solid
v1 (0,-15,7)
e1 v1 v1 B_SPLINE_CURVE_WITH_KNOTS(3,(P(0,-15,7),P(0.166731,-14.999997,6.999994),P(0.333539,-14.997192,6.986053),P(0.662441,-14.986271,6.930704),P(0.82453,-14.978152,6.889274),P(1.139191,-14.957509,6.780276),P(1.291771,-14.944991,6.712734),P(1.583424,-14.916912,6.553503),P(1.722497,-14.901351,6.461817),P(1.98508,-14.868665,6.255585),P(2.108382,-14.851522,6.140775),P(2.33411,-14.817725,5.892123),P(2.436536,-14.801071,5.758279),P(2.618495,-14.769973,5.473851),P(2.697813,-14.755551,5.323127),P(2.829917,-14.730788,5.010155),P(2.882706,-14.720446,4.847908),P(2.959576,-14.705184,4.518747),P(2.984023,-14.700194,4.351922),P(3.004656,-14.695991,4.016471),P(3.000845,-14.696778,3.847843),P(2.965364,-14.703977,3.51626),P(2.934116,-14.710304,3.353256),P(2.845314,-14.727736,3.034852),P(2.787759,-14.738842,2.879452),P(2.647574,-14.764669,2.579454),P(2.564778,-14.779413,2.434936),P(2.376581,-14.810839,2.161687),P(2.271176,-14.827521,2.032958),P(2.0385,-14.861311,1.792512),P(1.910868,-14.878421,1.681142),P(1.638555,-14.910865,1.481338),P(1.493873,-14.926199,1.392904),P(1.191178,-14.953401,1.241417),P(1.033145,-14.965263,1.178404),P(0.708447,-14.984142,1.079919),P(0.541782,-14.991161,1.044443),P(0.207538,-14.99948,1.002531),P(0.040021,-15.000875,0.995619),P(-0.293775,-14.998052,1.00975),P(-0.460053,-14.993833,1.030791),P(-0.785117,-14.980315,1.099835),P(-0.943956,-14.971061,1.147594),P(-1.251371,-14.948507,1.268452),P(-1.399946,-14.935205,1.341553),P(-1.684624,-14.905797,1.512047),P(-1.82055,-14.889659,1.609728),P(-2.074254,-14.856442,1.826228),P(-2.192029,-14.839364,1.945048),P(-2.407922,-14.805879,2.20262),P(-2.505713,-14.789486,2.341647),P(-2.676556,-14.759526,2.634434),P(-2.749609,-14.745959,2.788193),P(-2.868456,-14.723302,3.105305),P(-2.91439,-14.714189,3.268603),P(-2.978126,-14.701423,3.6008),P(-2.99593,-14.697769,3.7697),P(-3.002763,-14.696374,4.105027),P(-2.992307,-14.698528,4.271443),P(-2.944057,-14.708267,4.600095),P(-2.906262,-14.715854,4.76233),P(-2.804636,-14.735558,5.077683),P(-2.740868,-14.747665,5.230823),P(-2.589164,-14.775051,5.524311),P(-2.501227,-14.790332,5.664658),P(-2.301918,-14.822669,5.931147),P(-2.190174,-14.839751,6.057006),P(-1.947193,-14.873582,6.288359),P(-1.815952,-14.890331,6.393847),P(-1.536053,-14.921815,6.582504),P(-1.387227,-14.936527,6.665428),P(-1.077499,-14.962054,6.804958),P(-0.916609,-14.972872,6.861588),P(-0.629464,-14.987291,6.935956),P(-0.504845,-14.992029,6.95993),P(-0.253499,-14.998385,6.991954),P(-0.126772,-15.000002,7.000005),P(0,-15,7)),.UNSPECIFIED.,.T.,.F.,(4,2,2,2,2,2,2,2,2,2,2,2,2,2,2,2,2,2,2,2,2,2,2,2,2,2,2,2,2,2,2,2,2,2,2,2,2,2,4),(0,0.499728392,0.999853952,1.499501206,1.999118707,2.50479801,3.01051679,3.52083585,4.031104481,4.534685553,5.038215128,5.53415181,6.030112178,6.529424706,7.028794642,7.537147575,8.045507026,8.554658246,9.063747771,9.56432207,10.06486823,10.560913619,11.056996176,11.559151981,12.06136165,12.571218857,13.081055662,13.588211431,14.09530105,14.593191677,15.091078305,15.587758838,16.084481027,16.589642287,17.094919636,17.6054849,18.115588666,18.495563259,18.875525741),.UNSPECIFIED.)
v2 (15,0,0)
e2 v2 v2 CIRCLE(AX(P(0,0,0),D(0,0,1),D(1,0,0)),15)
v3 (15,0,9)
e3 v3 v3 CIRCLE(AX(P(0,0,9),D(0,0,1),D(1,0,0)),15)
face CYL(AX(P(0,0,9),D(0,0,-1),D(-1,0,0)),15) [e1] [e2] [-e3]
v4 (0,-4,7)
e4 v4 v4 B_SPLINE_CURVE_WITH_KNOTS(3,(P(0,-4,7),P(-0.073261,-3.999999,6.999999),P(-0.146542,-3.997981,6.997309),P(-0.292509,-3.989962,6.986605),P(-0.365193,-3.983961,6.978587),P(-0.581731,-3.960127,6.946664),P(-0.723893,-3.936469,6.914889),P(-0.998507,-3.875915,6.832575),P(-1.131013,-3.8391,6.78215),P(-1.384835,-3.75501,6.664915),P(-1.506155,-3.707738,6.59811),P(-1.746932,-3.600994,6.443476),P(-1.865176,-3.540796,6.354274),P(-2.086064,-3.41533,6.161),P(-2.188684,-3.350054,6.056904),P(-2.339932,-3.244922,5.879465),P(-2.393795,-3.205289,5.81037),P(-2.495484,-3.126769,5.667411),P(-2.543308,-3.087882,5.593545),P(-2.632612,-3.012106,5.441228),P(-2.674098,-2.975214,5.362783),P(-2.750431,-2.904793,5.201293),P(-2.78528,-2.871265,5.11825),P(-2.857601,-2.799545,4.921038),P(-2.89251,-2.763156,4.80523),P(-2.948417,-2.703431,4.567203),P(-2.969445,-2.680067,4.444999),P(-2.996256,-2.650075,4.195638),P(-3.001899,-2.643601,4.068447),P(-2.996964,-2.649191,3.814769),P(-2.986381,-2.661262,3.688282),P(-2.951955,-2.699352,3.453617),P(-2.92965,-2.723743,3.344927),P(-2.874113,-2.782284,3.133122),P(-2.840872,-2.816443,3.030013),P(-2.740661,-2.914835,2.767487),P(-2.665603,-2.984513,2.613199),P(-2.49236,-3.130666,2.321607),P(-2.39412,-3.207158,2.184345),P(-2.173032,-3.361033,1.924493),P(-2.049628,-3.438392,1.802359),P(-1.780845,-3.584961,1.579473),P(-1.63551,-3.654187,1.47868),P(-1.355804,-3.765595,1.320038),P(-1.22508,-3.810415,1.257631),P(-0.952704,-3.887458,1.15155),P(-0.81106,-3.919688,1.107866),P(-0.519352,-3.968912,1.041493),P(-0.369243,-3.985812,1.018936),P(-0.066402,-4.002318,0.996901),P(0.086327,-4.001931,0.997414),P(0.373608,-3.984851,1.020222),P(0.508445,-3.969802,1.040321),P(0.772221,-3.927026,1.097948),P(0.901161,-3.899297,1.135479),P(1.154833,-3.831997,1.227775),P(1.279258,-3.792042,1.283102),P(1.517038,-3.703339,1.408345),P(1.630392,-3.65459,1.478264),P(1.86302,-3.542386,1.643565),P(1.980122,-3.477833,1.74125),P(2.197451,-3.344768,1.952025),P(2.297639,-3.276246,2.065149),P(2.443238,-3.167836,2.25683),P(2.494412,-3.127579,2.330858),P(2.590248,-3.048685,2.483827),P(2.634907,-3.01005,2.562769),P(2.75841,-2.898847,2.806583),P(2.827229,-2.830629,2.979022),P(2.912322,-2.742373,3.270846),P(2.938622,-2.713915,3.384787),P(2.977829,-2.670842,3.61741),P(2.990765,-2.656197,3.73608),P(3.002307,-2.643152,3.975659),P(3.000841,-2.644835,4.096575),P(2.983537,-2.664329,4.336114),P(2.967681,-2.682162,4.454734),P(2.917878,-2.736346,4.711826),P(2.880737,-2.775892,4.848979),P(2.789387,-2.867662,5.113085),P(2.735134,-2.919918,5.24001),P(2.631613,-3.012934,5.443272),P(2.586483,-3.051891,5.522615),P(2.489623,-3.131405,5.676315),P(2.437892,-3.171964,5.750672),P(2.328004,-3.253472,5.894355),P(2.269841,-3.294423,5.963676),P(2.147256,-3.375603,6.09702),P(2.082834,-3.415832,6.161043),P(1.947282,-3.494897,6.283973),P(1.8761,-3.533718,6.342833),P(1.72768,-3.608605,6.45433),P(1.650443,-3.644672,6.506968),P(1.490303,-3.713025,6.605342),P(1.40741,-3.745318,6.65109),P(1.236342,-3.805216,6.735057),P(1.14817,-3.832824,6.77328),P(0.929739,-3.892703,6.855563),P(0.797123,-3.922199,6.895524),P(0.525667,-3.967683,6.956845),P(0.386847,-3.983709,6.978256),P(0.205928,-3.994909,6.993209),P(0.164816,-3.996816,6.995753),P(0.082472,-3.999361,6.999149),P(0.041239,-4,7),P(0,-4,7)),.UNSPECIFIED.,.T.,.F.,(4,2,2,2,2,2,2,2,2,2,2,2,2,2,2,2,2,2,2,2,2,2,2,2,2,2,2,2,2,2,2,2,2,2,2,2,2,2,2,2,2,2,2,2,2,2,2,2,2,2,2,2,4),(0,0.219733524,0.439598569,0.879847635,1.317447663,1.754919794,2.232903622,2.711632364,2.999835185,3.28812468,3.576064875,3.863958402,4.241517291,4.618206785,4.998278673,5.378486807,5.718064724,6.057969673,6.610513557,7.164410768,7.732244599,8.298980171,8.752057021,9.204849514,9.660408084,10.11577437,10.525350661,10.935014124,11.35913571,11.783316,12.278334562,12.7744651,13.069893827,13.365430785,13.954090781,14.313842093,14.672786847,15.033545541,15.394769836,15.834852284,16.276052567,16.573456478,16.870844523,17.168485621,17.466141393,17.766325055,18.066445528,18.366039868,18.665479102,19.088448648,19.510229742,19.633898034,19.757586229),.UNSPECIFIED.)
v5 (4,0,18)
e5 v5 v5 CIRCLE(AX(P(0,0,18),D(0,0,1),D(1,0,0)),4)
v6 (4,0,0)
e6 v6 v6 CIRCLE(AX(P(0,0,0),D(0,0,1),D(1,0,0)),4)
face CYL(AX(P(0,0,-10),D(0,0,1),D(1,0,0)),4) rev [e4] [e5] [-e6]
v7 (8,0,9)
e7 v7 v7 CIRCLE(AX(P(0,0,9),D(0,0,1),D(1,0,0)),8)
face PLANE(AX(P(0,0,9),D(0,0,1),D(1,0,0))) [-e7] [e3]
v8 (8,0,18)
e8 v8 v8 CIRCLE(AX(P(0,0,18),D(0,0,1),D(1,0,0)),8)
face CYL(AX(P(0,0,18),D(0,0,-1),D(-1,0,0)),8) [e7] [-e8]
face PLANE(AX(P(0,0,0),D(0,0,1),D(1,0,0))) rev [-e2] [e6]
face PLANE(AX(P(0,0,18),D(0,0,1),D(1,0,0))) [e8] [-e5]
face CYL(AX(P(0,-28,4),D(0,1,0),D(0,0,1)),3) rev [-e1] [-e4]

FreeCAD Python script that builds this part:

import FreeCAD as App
import Part
import Sketcher

V = App.Vector
Q = App.Units.Quantity

doc = App.newDocument("Part")
params = doc.addObject("Spreadsheet::Sheet", "Params")
for row, (alias, value) in enumerate([
    ("sketch1_diameter", "30 mm"),
    ("pad1_length", "9 mm"),
    ("sketch2_diameter", "16 mm"),
    ("pad2_length", "9 mm"),
    ("sketch3_diameter", "8 mm"),
    ("pocket1_length", "28 mm"),
    ("sketch4_diameter", "6 mm"),
    ("pocket2_length", "28 mm"),
], start=1):
    params.set(f"A{row}", alias)
    params.set(f"B{row}", "=" + value)
    params.setAlias(f"B{row}", alias)

body = doc.addObject("PartDesign::Body", "Body")

sketch1 = doc.addObject("Sketcher::SketchObject", "Sketch")
body.addObject(sketch1)
sketch1.AttachmentSupport = (doc.XY_Plane, [""])
sketch1.MapMode = "FlatFace"
sketch1.addGeometry(Part.Circle(V(0, 0, 0), V(0, 0, 1), 15), False)
sketch1.addConstraint([
    Sketcher.Constraint("Coincident", 0, 3, -1, 1),
    Sketcher.Constraint("Diameter", 0, Q("30 mm")),
])
sketch1.setExpression("Constraints[1]", "Params.sketch1_diameter")
pad1 = doc.addObject("PartDesign::Pad", "Pad")
body.addObject(pad1)
pad1.Profile = sketch1
pad1.setExpression("Length", "Params.pad1_length")

sketch2 = doc.addObject("Sketcher::SketchObject", "Sketch001")
body.addObject(sketch2)
sketch2.AttachmentSupport = (doc.XY_Plane, [""])
sketch2.MapMode = "FlatFace"
sketch2.AttachmentOffset = App.Placement(V(0, 0, 9), App.Rotation())
sketch2.addGeometry(Part.Circle(V(0, 0, 0), V(0, 0, 1), 8), False)
sketch2.addConstraint([
    Sketcher.Constraint("Coincident", 0, 3, -1, 1),
    Sketcher.Constraint("Diameter", 0, Q("16 mm")),
])
sketch2.setExpression("Constraints[1]", "Params.sketch2_diameter")
pad2 = doc.addObject("PartDesign::Pad", "Pad001")
body.addObject(pad2)
pad2.Profile = sketch2
pad2.setExpression("Length", "Params.pad2_length")

sketch3 = doc.addObject("Sketcher::SketchObject", "Sketch002")
body.addObject(sketch3)
sketch3.AttachmentSupport = (doc.XY_Plane, [""])
sketch3.MapMode = "FlatFace"
sketch3.AttachmentOffset = App.Placement(V(0, 0, 18), App.Rotation())
sketch3.addGeometry(Part.Circle(V(0, 0, 0), V(0, 0, 1), 4), False)
sketch3.addConstraint([
    Sketcher.Constraint("Coincident", 0, 3, -1, 1),
    Sketcher.Constraint("Diameter", 0, Q("8 mm")),
])
sketch3.setExpression("Constraints[1]", "Params.sketch3_diameter")
pocket1 = doc.addObject("PartDesign::Pocket", "Pocket")
body.addObject(pocket1)
pocket1.Profile = sketch3
pocket1.setExpression("Length", "Params.pocket1_length")

sketch4 = doc.addObject("Sketcher::SketchObject", "Sketch003")
body.addObject(sketch4)
sketch4.AttachmentSupport = (doc.XZ_Plane, [""])
sketch4.MapMode = "FlatFace"
sketch4.addGeometry(Part.Circle(V(0, 4, 0), V(0, 0, 1), 3), False)
sketch4.addConstraint([
    Sketcher.Constraint("PointOnObject", 0, 3, -2),
    Sketcher.Constraint("Diameter", 0, Q("6 mm")),
    Sketcher.Constraint("DistanceY", -1, 1, 0, 3, Q("4 mm")),
])
sketch4.setExpression("Constraints[1]", "Params.sketch4_diameter")
pocket2 = doc.addObject("PartDesign::Pocket", "Pocket001")
body.addObject(pocket2)
pocket2.Profile = sketch4
pocket2.setExpression("Length", "Params.pocket2_length")
pocket2.Reversed = True

doc.recompute()
